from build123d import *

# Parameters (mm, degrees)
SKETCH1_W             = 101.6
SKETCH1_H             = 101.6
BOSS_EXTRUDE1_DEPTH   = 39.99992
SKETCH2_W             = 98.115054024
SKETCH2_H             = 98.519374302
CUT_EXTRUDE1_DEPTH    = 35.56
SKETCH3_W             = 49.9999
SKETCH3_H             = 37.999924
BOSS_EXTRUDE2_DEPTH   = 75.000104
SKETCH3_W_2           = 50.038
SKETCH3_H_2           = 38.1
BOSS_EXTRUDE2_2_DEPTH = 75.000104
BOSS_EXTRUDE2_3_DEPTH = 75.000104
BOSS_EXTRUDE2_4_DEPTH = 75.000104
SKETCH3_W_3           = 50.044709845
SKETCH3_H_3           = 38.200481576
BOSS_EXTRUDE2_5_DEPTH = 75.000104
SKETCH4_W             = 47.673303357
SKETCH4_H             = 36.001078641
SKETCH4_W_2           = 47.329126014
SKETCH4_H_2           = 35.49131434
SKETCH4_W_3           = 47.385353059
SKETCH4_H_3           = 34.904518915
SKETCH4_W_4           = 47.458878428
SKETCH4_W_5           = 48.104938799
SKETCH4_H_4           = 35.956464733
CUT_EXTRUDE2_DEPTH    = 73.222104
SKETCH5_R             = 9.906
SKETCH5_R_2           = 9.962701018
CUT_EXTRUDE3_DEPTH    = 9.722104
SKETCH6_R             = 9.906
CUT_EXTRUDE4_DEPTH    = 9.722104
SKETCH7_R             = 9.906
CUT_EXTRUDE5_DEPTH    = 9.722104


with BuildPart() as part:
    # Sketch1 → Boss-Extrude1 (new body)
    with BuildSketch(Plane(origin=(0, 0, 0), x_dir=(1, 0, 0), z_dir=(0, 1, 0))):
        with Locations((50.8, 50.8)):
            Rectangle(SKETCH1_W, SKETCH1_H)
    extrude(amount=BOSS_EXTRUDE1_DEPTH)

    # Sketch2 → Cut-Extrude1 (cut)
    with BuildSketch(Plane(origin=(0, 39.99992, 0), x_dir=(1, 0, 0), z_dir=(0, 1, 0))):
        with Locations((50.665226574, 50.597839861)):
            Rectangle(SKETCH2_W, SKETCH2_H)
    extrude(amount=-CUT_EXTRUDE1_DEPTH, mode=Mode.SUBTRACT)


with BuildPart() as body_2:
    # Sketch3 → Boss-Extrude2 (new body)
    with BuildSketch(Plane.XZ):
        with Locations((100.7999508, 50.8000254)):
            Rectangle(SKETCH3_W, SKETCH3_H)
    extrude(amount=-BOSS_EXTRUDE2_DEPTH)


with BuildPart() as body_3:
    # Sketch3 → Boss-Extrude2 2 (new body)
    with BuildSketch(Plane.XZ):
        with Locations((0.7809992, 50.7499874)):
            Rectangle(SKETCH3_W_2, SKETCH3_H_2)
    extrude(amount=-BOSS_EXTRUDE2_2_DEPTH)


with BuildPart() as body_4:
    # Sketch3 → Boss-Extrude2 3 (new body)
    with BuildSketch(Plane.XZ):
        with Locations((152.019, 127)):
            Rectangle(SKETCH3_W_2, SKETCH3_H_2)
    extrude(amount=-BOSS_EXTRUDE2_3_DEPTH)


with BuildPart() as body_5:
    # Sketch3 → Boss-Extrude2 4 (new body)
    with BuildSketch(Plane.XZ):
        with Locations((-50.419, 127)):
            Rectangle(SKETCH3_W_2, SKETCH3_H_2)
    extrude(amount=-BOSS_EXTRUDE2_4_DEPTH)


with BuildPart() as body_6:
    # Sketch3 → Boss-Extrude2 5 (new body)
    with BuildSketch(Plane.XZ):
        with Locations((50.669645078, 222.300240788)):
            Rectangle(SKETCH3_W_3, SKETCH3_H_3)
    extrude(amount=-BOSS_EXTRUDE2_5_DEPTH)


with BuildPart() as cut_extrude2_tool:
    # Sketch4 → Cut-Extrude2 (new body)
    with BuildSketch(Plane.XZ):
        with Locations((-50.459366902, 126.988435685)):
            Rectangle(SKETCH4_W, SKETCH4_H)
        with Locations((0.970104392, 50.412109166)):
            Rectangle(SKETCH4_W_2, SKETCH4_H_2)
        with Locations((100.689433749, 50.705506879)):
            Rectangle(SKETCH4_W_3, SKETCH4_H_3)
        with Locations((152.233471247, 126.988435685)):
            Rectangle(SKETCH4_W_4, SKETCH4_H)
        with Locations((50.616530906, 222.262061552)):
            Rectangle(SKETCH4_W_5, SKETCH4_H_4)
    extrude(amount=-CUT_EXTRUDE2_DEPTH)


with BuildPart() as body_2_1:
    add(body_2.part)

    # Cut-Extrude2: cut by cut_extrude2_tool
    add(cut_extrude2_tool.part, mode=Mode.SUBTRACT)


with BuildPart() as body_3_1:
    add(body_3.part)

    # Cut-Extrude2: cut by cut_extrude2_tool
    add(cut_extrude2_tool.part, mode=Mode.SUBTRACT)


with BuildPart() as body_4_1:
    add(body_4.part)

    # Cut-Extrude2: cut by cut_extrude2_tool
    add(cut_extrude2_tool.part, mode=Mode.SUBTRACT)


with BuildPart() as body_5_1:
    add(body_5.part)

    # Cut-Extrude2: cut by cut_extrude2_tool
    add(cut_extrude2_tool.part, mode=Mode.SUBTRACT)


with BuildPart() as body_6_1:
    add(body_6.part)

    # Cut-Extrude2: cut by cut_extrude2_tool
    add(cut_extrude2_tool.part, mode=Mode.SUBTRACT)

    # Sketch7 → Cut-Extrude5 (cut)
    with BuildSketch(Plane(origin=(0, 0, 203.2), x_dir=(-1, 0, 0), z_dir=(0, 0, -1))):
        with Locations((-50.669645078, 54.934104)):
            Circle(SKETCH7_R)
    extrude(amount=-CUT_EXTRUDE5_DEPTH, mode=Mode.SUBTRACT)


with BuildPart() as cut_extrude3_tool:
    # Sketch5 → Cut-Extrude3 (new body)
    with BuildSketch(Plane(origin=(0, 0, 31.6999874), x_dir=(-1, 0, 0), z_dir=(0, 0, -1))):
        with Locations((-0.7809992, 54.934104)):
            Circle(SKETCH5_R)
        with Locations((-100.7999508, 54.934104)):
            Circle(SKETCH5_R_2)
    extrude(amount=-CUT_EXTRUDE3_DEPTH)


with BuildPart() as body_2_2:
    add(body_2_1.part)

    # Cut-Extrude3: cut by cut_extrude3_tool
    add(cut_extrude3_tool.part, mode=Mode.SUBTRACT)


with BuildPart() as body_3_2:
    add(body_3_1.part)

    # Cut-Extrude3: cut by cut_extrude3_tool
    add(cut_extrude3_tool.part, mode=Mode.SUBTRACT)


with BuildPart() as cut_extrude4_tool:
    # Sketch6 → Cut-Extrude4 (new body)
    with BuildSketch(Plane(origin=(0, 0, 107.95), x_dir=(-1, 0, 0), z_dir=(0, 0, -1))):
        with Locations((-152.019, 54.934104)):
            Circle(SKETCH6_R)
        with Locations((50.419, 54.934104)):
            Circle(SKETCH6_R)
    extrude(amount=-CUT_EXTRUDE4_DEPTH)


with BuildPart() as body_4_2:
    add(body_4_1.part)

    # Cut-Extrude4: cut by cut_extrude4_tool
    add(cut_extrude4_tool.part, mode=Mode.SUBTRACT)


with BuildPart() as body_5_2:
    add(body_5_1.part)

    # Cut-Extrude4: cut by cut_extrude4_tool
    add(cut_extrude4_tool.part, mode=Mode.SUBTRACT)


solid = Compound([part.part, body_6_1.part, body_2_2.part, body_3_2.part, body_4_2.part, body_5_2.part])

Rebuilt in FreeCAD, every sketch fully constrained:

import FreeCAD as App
import Part
import Sketcher
Q = App.Units.Quantity


def add_polygon(sketch, points):
    """Adds a closed chain of lines whose ends are joined by coincident constraints."""
    first, n = sketch.GeometryCount, len(points)
    for a, b in zip(points, points[1:] + points[:1]):
        sketch.addGeometry(Part.LineSegment(App.Vector(*a, 0), App.Vector(*b, 0)), False)
    for i in range(n):
        sketch.addConstraint(Sketcher.Constraint("Coincident", first + i, 2, first + (i + 1) % n, 1))

doc = App.newDocument("Part")
body = doc.addObject("PartDesign::Body", "Body")

sketch1 = body.newObject("Sketcher::SketchObject", "Sketch")
sketch1.AttachmentSupport = (doc.getObject("XZ_Plane"), [""])
sketch1.MapMode = "FlatFace"
add_polygon(sketch1, [(0, -101.6), (0, 0), (101.6, 0), (101.6, -101.6)])
sketch1.addConstraint([
    Sketcher.Constraint("Vertical", 0),
    Sketcher.Constraint("Horizontal", 1),
    Sketcher.Constraint("Vertical", 2),
    Sketcher.Constraint("Horizontal", 3),
    Sketcher.Constraint("Coincident", 0, 2, -1, 1),
    Sketcher.Constraint("Equal", 3, 0),
    Sketcher.Constraint("DistanceX", 1, 1, 1, 2, Q("4 in")),
])
pad1 = body.newObject("PartDesign::Pad", "Pad")
pad1.Profile = sketch1
pad1.Length = Q("1.5748 in")
pad1.Reversed = True

sketch2 = body.newObject("Sketcher::SketchObject", "Sketch001")
sketch2.AttachmentSupport = (doc.getObject("XZ_Plane"), [""])
sketch2.MapMode = "FlatFace"
sketch2.AttachmentOffset = App.Placement(App.Vector(0, 0, -1.5748 * 25.4), App.Rotation())
add_polygon(sketch2, [(1.6077, -99.857527), (1.6077, -1.338153), (99.722754, -1.338153), (99.722754, -99.857527)])
sketch2.addConstraint([
    Sketcher.Constraint("Vertical", 0),
    Sketcher.Constraint("Horizontal", 1),
    Sketcher.Constraint("Vertical", 2),
    Sketcher.Constraint("Horizontal", 3),
    Sketcher.Constraint("DistanceX", -1, 1, 0, 2, 1.6077),
    Sketcher.Constraint("DistanceX", 1, 1, 1, 2, 98.115054),
    Sketcher.Constraint("DistanceY", 0, 1, 0, 2, 98.519374),
    Sketcher.Constraint("DistanceY", 0, 2, -1, 1, 1.338153),
])
pocket1 = body.newObject("PartDesign::Pocket", "Pocket")
pocket1.Profile = sketch2
pocket1.Length = Q("1.4 in")
pocket1.Reversed = True
body2 = doc.addObject("PartDesign::Body", "Body001")

sketch3 = body2.newObject("Sketcher::SketchObject", "Sketch002")
sketch3.AttachmentSupport = (doc.getObject("XZ_Plane001"), [""])
sketch3.MapMode = "FlatFace"
add_polygon(sketch3, [(75.800001, 69.799987), (75.800001, 31.800063), (125.799901, 31.800063), (125.799901, 69.799987)])
sketch3.addConstraint([
    Sketcher.Constraint("Vertical", 0),
    Sketcher.Constraint("Horizontal", 1),
    Sketcher.Constraint("Vertical", 2),
    Sketcher.Constraint("Horizontal", 3),
    Sketcher.Constraint("DistanceX", 1, 1, 1, 2, Q("1.9685 in")),
    Sketcher.Constraint("DistanceX", -1, 1, 0, 2, 75.800001),
    Sketcher.Constraint("DistanceY", 0, 2, 0, 1, 37.999924),
    Sketcher.Constraint("DistanceY", -1, 1, 0, 2, 31.800063),
])
pad2 = body2.newObject("PartDesign::Pad", "Pad001")
pad2.Profile = sketch3
pad2.Length = 75.000104
pad2.Reversed = True
body3 = doc.addObject("PartDesign::Body", "Body002")

sketch4 = body3.newObject("Sketcher::SketchObject", "Sketch003")
sketch4.AttachmentSupport = (doc.getObject("XZ_Plane002"), [""])
sketch4.MapMode = "FlatFace"
add_polygon(sketch4, [(-24.238001, 69.799987), (-24.238001, 31.699987), (25.799999, 31.699987), (25.799999, 69.799987)])
sketch4.addConstraint([
    Sketcher.Constraint("Vertical", 0),
    Sketcher.Constraint("Horizontal", 1),
    Sketcher.Constraint("Vertical", 2),
    Sketcher.Constraint("Horizontal", 3),
    Sketcher.Constraint("DistanceY", 0, 2, 0, 1, Q("1.5 in")),
    Sketcher.Constraint("DistanceX", 1, 1, 1, 2, Q("1.97 in")),
    Sketcher.Constraint("DistanceX", 0, 2, -1, 1, 24.238001),
    Sketcher.Constraint("DistanceY", -1, 1, 0, 2, 31.699987),
])
pad3 = body3.newObject("PartDesign::Pad", "Pad002")
pad3.Profile = sketch4
pad3.Length = 75.000104
pad3.Reversed = True
body4 = doc.addObject("PartDesign::Body", "Body003")

sketch5 = body4.newObject("Sketcher::SketchObject", "Sketch004")
sketch5.AttachmentSupport = (doc.getObject("XZ_Plane003"), [""])
sketch5.MapMode = "FlatFace"
add_polygon(sketch5, [(127, 146.05), (127, 107.95), (177.038, 107.95), (177.038, 146.05)])
sketch5.addConstraint([
    Sketcher.Constraint("Vertical", 0),
    Sketcher.Constraint("Horizontal", 1),
    Sketcher.Constraint("Vertical", 2),
    Sketcher.Constraint("Horizontal", 3),
    Sketcher.Constraint("DistanceY", 0, 2, 0, 1, Q("1.5 in")),
    Sketcher.Constraint("DistanceX", -1, 1, 0, 2, Q("5 in")),
    Sketcher.Constraint("DistanceX", 1, 1, 1, 2, Q("1.97 in")),
    Sketcher.Constraint("DistanceY", -1, 1, 0, 2, Q("4.25 in")),
])
pad4 = body4.newObject("PartDesign::Pad", "Pad003")
pad4.Profile = sketch5
pad4.Length = 75.000104
pad4.Reversed = True
body5 = doc.addObject("PartDesign::Body", "Body004")

sketch6 = body5.newObject("Sketcher::SketchObject", "Sketch005")
sketch6.AttachmentSupport = (doc.getObject("XZ_Plane004"), [""])
sketch6.MapMode = "FlatFace"
add_polygon(sketch6, [(-75.438, 146.05), (-75.438, 107.95), (-25.4, 107.95), (-25.4, 146.05)])
sketch6.addConstraint([
    Sketcher.Constraint("Vertical", 0),
    Sketcher.Constraint("Horizontal", 1),
    Sketcher.Constraint("Vertical", 2),
    Sketcher.Constraint("Horizontal", 3),
    Sketcher.Constraint("DistanceY", 0, 2, 0, 1, Q("1.5 in")),
    Sketcher.Constraint("DistanceX", 1, 2, -1, 1, Q("1 in")),
    Sketcher.Constraint("DistanceX", 1, 1, 1, 2, Q("1.97 in")),
    Sketcher.Constraint("DistanceY", -1, 1, 0, 2, Q("4.25 in")),
])
pad5 = body5.newObject("PartDesign::Pad", "Pad004")
pad5.Profile = sketch6
pad5.Length = 75.000104
pad5.Reversed = True
body6 = doc.addObject("PartDesign::Body", "Body005")

sketch7 = body6.newObject("Sketcher::SketchObject", "Sketch006")
sketch7.AttachmentSupport = (doc.getObject("XZ_Plane005"), [""])
sketch7.MapMode = "FlatFace"
add_polygon(sketch7, [(25.64729, 241.400482), (25.64729, 203.2), (75.692, 203.2), (75.692, 241.400482)])
sketch7.addConstraint([
    Sketcher.Constraint("Vertical", 0),
    Sketcher.Constraint("Horizontal", 1),
    Sketcher.Constraint("Vertical", 2),
    Sketcher.Constraint("Horizontal", 3),
    Sketcher.Constraint("DistanceY", -1, 1, 0, 2, Q("8 in")),
    Sketcher.Constraint("DistanceX", -1, 1, 1, 2, Q("2.98 in")),
    Sketcher.Constraint("DistanceX", 1, 1, 1, 2, 50.04471),
    Sketcher.Constraint("DistanceY", 0, 2, 0, 1, 38.200482),
])
pad6 = body6.newObject("PartDesign::Pad", "Pad005")
pad6.Profile = sketch7
pad6.Length = 75.000104
pad6.Reversed = True
body7 = doc.addObject("PartDesign::Body", "Body006")
body7.AllowCompound = True

sketch8 = body7.newObject("Sketcher::SketchObject", "Sketch007")
sketch8.AttachmentSupport = (doc.getObject("XZ_Plane006"), [""])
sketch8.MapMode = "FlatFace"
add_polygon(sketch8, [(-74.296019, 144.988975), (-74.296019, 108.987896), (-26.622715, 108.987896), (-26.622715, 144.988975)])
add_polygon(sketch8, [(-22.694459, 68.157766), (-22.694459, 32.666452), (24.634667, 32.666452), (24.634667, 68.157766)])
add_polygon(sketch8, [(76.996757, 68.157766), (76.996757, 33.253247), (124.38211, 33.253247), (124.38211, 68.157766)])
add_polygon(sketch8, [(128.504032, 144.988975), (128.504032, 108.987896), (175.96291, 108.987896), (175.96291, 144.988975)])
add_polygon(sketch8, [(26.564062, 240.240294), (26.564062, 204.283829), (74.669, 204.283829), (74.669, 240.240294)])
sketch8.addConstraint([
    Sketcher.Constraint("Vertical", 0),
    Sketcher.Constraint("Horizontal", 1),
    Sketcher.Constraint("Vertical", 2),
    Sketcher.Constraint("Horizontal", 3),
    Sketcher.Constraint("Vertical", 4),
    Sketcher.Constraint("Horizontal", 5),
    Sketcher.Constraint("Vertical", 6),
    Sketcher.Constraint("Horizontal", 7),
    Sketcher.Constraint("Vertical", 8),
    Sketcher.Constraint("Horizontal", 9),
    Sketcher.Constraint("Vertical", 10),
    Sketcher.Constraint("Horizontal", 11),
    Sketcher.Constraint("Vertical", 12),
    Sketcher.Constraint("Horizontal", 13),
    Sketcher.Constraint("Vertical", 14),
    Sketcher.Constraint("Horizontal", 15),
    Sketcher.Constraint("Vertical", 16),
    Sketcher.Constraint("Horizontal", 17),
    Sketcher.Constraint("Vertical", 18),
    Sketcher.Constraint("Horizontal", 19),
    Sketcher.Constraint("Horizontal", 7, 2, 10, 2),
    Sketcher.Constraint("Horizontal", 1, 2, 12, 2),
    Sketcher.Constraint("Horizontal", 3, 2, 14, 2),
    Sketcher.Constraint("DistanceX", 13, 1, 13, 2, 47.458878),
    Sketcher.Constraint("DistanceX", 17, 1, 17, 2, 48.104939),
    Sketcher.Constraint("DistanceY", 0, 2, 0, 1, 36.001079),
    Sketcher.Constraint("DistanceY", 8, 2, 8, 1, 34.904519),
    Sketcher.Constraint("DistanceX", -1, 1, 17, 2, 74.669),
    Sketcher.Constraint("DistanceX", 10, 2, 13, 2, 51.5808),
    Sketcher.Constraint("DistanceX", 1, 1, 1, 2, 47.673303),
    Sketcher.Constraint("DistanceX", 5, 1, 5, 2, 47.329126),
    Sketcher.Constraint("DistanceX", 9, 1, 9, 2, 47.385353),
    Sketcher.Constraint("DistanceY", 4, 2, 4, 1, 35.491314),
    Sketcher.Constraint("DistanceY", 16, 2, 16, 1, 35.956465),
    Sketcher.Constraint("DistanceX", 0, 2, -1, 1, 74.296019),
    Sketcher.Constraint("DistanceX", 4, 2, -1, 1, 22.694459),
    Sketcher.Constraint("DistanceY", -1, 1, 4, 2, 32.666452),
    Sketcher.Constraint("DistanceX", -1, 1, 9, 2, 124.38211),
    Sketcher.Constraint("DistanceY", -1, 1, 16, 2, 204.283829),
    Sketcher.Constraint("DistanceY", 6, 2, 1, 2, 40.83013),
])
pad7 = body7.newObject("PartDesign::Pad", "Pad006")
pad7.Profile = sketch8
pad7.Length = 73.222104
pad7.Reversed = True
doc.recompute()

body8 = doc.addObject("PartDesign::Body", "Body007")
body8.BaseFeature = body7
boolean = body2.newObject("PartDesign::Boolean", "Boolean")
boolean.Type = "Cut"
boolean.addObjects([body8])
doc.recompute()

body9 = doc.addObject("PartDesign::Body", "Body008")
body9.BaseFeature = body7
boolean2 = body3.newObject("PartDesign::Boolean", "Boolean001")
boolean2.Type = "Cut"
boolean2.addObjects([body9])
doc.recompute()

body10 = doc.addObject("PartDesign::Body", "Body009")
body10.BaseFeature = body7
boolean3 = body4.newObject("PartDesign::Boolean", "Boolean002")
boolean3.Type = "Cut"
boolean3.addObjects([body10])
doc.recompute()

body11 = doc.addObject("PartDesign::Body", "Body010")
body11.BaseFeature = body7
boolean4 = body5.newObject("PartDesign::Boolean", "Boolean003")
boolean4.Type = "Cut"
boolean4.addObjects([body11])
doc.recompute()

boolean5 = body6.newObject("PartDesign::Boolean", "Boolean004")
boolean5.Type = "Cut"
boolean5.addObjects([body7])

sketch9 = body6.newObject("Sketcher::SketchObject", "Sketch008")
sketch9.AttachmentSupport = (doc.getObject("XY_Plane005"), [""])
sketch9.MapMode = "FlatFace"
sketch9.AttachmentOffset = App.Placement(App.Vector(0, 0, 8 * 25.4), App.Rotation())
sketch9.addGeometry(Part.Circle(App.Vector(50.669645, 54.934104, 0), App.Vector(0, 0, 1), 9.906), False)
sketch9.addConstraint([
    Sketcher.Constraint("Diameter", 0, Q("0.78 in")),
    Sketcher.Constraint("DistanceX", -1, 1, 0, 3, 50.669645),
    Sketcher.Constraint("DistanceY", -1, 1, 0, 3, 54.934104),
])
pocket2 = body6.newObject("PartDesign::Pocket", "Pocket001")
pocket2.Profile = sketch9
pocket2.Length = 9.722104
pocket2.Reversed = True
body12 = doc.addObject("PartDesign::Body", "Body011")
body12.AllowCompound = True

sketch10 = body12.newObject("Sketcher::SketchObject", "Sketch009")
sketch10.AttachmentSupport = (doc.getObject("XY_Plane011"), [""])
sketch10.MapMode = "FlatFace"
sketch10.AttachmentOffset = App.Placement(App.Vector(0, 0, 31.699987), App.Rotation())
sketch10.addGeometry([
    Part.Circle(App.Vector(0.780999, 54.934104, 0), App.Vector(0, 0, 1), 9.906),
    Part.Circle(App.Vector(100.799951, 54.934104, 0), App.Vector(0, 0, 1), 9.962701),
], False)
sketch10.addConstraint([
    Sketcher.Constraint("Horizontal", 0, 3, 1, 3),
    Sketcher.Constraint("Diameter", 0, Q("0.78 in")),
    Sketcher.Constraint("Diameter", 1, 19.925402),
    Sketcher.Constraint("DistanceX", -1, 1, 0, 3, 0.780999),
    Sketcher.Constraint("DistanceX", -1, 1, 1, 3, 100.799951),
    Sketcher.Constraint("DistanceY", -1, 1, 0, 3, 54.934104),
])
pad8 = body12.newObject("PartDesign::Pad", "Pad007")
pad8.Profile = sketch10
pad8.Length = 9.722104
doc.recompute()

body13 = doc.addObject("PartDesign::Body", "Body012")
body13.BaseFeature = body12
boolean6 = body2.newObject("PartDesign::Boolean", "Boolean005")
boolean6.Type = "Cut"
boolean6.addObjects([body13])
doc.recompute()

boolean7 = body3.newObject("PartDesign::Boolean", "Boolean006")
boolean7.Type = "Cut"
boolean7.addObjects([body12])
body14 = doc.addObject("PartDesign::Body", "Body013")
body14.AllowCompound = True

sketch11 = body14.newObject("Sketcher::SketchObject", "Sketch010")
sketch11.AttachmentSupport = (doc.getObject("XY_Plane013"), [""])
sketch11.MapMode = "FlatFace"
sketch11.AttachmentOffset = App.Placement(App.Vector(0, 0, 4.25 * 25.4), App.Rotation())
sketch11.addGeometry([
    Part.Circle(App.Vector(152.019, 54.934104, 0), App.Vector(0, 0, 1), 9.906),
    Part.Circle(App.Vector(-50.419, 54.934104, 0), App.Vector(0, 0, 1), 9.906),
], False)
sketch11.addConstraint([
    Sketcher.Constraint("Equal", 0, 1),
    Sketcher.Constraint("Horizontal", 0, 3, 1, 3),
    Sketcher.Constraint("Diameter", 0, Q("0.78 in")),
    Sketcher.Constraint("DistanceX", 1, 3, 0, 3, Q("7.97 in")),
    Sketcher.Constraint("DistanceX", -1, 1, 0, 3, Q("5.985 in")),
    Sketcher.Constraint("DistanceY", -1, 1, 0, 3, 54.934104),
])
pad9 = body14.newObject("PartDesign::Pad", "Pad008")
pad9.Profile = sketch11
pad9.Length = 9.722104
doc.recompute()

body15 = doc.addObject("PartDesign::Body", "Body014")
body15.BaseFeature = body14
boolean8 = body4.newObject("PartDesign::Boolean", "Boolean007")
boolean8.Type = "Cut"
boolean8.addObjects([body15])
doc.recompute()

boolean9 = body5.newObject("PartDesign::Boolean", "Boolean008")
boolean9.Type = "Cut"
boolean9.addObjects([body14])

doc.recompute()
